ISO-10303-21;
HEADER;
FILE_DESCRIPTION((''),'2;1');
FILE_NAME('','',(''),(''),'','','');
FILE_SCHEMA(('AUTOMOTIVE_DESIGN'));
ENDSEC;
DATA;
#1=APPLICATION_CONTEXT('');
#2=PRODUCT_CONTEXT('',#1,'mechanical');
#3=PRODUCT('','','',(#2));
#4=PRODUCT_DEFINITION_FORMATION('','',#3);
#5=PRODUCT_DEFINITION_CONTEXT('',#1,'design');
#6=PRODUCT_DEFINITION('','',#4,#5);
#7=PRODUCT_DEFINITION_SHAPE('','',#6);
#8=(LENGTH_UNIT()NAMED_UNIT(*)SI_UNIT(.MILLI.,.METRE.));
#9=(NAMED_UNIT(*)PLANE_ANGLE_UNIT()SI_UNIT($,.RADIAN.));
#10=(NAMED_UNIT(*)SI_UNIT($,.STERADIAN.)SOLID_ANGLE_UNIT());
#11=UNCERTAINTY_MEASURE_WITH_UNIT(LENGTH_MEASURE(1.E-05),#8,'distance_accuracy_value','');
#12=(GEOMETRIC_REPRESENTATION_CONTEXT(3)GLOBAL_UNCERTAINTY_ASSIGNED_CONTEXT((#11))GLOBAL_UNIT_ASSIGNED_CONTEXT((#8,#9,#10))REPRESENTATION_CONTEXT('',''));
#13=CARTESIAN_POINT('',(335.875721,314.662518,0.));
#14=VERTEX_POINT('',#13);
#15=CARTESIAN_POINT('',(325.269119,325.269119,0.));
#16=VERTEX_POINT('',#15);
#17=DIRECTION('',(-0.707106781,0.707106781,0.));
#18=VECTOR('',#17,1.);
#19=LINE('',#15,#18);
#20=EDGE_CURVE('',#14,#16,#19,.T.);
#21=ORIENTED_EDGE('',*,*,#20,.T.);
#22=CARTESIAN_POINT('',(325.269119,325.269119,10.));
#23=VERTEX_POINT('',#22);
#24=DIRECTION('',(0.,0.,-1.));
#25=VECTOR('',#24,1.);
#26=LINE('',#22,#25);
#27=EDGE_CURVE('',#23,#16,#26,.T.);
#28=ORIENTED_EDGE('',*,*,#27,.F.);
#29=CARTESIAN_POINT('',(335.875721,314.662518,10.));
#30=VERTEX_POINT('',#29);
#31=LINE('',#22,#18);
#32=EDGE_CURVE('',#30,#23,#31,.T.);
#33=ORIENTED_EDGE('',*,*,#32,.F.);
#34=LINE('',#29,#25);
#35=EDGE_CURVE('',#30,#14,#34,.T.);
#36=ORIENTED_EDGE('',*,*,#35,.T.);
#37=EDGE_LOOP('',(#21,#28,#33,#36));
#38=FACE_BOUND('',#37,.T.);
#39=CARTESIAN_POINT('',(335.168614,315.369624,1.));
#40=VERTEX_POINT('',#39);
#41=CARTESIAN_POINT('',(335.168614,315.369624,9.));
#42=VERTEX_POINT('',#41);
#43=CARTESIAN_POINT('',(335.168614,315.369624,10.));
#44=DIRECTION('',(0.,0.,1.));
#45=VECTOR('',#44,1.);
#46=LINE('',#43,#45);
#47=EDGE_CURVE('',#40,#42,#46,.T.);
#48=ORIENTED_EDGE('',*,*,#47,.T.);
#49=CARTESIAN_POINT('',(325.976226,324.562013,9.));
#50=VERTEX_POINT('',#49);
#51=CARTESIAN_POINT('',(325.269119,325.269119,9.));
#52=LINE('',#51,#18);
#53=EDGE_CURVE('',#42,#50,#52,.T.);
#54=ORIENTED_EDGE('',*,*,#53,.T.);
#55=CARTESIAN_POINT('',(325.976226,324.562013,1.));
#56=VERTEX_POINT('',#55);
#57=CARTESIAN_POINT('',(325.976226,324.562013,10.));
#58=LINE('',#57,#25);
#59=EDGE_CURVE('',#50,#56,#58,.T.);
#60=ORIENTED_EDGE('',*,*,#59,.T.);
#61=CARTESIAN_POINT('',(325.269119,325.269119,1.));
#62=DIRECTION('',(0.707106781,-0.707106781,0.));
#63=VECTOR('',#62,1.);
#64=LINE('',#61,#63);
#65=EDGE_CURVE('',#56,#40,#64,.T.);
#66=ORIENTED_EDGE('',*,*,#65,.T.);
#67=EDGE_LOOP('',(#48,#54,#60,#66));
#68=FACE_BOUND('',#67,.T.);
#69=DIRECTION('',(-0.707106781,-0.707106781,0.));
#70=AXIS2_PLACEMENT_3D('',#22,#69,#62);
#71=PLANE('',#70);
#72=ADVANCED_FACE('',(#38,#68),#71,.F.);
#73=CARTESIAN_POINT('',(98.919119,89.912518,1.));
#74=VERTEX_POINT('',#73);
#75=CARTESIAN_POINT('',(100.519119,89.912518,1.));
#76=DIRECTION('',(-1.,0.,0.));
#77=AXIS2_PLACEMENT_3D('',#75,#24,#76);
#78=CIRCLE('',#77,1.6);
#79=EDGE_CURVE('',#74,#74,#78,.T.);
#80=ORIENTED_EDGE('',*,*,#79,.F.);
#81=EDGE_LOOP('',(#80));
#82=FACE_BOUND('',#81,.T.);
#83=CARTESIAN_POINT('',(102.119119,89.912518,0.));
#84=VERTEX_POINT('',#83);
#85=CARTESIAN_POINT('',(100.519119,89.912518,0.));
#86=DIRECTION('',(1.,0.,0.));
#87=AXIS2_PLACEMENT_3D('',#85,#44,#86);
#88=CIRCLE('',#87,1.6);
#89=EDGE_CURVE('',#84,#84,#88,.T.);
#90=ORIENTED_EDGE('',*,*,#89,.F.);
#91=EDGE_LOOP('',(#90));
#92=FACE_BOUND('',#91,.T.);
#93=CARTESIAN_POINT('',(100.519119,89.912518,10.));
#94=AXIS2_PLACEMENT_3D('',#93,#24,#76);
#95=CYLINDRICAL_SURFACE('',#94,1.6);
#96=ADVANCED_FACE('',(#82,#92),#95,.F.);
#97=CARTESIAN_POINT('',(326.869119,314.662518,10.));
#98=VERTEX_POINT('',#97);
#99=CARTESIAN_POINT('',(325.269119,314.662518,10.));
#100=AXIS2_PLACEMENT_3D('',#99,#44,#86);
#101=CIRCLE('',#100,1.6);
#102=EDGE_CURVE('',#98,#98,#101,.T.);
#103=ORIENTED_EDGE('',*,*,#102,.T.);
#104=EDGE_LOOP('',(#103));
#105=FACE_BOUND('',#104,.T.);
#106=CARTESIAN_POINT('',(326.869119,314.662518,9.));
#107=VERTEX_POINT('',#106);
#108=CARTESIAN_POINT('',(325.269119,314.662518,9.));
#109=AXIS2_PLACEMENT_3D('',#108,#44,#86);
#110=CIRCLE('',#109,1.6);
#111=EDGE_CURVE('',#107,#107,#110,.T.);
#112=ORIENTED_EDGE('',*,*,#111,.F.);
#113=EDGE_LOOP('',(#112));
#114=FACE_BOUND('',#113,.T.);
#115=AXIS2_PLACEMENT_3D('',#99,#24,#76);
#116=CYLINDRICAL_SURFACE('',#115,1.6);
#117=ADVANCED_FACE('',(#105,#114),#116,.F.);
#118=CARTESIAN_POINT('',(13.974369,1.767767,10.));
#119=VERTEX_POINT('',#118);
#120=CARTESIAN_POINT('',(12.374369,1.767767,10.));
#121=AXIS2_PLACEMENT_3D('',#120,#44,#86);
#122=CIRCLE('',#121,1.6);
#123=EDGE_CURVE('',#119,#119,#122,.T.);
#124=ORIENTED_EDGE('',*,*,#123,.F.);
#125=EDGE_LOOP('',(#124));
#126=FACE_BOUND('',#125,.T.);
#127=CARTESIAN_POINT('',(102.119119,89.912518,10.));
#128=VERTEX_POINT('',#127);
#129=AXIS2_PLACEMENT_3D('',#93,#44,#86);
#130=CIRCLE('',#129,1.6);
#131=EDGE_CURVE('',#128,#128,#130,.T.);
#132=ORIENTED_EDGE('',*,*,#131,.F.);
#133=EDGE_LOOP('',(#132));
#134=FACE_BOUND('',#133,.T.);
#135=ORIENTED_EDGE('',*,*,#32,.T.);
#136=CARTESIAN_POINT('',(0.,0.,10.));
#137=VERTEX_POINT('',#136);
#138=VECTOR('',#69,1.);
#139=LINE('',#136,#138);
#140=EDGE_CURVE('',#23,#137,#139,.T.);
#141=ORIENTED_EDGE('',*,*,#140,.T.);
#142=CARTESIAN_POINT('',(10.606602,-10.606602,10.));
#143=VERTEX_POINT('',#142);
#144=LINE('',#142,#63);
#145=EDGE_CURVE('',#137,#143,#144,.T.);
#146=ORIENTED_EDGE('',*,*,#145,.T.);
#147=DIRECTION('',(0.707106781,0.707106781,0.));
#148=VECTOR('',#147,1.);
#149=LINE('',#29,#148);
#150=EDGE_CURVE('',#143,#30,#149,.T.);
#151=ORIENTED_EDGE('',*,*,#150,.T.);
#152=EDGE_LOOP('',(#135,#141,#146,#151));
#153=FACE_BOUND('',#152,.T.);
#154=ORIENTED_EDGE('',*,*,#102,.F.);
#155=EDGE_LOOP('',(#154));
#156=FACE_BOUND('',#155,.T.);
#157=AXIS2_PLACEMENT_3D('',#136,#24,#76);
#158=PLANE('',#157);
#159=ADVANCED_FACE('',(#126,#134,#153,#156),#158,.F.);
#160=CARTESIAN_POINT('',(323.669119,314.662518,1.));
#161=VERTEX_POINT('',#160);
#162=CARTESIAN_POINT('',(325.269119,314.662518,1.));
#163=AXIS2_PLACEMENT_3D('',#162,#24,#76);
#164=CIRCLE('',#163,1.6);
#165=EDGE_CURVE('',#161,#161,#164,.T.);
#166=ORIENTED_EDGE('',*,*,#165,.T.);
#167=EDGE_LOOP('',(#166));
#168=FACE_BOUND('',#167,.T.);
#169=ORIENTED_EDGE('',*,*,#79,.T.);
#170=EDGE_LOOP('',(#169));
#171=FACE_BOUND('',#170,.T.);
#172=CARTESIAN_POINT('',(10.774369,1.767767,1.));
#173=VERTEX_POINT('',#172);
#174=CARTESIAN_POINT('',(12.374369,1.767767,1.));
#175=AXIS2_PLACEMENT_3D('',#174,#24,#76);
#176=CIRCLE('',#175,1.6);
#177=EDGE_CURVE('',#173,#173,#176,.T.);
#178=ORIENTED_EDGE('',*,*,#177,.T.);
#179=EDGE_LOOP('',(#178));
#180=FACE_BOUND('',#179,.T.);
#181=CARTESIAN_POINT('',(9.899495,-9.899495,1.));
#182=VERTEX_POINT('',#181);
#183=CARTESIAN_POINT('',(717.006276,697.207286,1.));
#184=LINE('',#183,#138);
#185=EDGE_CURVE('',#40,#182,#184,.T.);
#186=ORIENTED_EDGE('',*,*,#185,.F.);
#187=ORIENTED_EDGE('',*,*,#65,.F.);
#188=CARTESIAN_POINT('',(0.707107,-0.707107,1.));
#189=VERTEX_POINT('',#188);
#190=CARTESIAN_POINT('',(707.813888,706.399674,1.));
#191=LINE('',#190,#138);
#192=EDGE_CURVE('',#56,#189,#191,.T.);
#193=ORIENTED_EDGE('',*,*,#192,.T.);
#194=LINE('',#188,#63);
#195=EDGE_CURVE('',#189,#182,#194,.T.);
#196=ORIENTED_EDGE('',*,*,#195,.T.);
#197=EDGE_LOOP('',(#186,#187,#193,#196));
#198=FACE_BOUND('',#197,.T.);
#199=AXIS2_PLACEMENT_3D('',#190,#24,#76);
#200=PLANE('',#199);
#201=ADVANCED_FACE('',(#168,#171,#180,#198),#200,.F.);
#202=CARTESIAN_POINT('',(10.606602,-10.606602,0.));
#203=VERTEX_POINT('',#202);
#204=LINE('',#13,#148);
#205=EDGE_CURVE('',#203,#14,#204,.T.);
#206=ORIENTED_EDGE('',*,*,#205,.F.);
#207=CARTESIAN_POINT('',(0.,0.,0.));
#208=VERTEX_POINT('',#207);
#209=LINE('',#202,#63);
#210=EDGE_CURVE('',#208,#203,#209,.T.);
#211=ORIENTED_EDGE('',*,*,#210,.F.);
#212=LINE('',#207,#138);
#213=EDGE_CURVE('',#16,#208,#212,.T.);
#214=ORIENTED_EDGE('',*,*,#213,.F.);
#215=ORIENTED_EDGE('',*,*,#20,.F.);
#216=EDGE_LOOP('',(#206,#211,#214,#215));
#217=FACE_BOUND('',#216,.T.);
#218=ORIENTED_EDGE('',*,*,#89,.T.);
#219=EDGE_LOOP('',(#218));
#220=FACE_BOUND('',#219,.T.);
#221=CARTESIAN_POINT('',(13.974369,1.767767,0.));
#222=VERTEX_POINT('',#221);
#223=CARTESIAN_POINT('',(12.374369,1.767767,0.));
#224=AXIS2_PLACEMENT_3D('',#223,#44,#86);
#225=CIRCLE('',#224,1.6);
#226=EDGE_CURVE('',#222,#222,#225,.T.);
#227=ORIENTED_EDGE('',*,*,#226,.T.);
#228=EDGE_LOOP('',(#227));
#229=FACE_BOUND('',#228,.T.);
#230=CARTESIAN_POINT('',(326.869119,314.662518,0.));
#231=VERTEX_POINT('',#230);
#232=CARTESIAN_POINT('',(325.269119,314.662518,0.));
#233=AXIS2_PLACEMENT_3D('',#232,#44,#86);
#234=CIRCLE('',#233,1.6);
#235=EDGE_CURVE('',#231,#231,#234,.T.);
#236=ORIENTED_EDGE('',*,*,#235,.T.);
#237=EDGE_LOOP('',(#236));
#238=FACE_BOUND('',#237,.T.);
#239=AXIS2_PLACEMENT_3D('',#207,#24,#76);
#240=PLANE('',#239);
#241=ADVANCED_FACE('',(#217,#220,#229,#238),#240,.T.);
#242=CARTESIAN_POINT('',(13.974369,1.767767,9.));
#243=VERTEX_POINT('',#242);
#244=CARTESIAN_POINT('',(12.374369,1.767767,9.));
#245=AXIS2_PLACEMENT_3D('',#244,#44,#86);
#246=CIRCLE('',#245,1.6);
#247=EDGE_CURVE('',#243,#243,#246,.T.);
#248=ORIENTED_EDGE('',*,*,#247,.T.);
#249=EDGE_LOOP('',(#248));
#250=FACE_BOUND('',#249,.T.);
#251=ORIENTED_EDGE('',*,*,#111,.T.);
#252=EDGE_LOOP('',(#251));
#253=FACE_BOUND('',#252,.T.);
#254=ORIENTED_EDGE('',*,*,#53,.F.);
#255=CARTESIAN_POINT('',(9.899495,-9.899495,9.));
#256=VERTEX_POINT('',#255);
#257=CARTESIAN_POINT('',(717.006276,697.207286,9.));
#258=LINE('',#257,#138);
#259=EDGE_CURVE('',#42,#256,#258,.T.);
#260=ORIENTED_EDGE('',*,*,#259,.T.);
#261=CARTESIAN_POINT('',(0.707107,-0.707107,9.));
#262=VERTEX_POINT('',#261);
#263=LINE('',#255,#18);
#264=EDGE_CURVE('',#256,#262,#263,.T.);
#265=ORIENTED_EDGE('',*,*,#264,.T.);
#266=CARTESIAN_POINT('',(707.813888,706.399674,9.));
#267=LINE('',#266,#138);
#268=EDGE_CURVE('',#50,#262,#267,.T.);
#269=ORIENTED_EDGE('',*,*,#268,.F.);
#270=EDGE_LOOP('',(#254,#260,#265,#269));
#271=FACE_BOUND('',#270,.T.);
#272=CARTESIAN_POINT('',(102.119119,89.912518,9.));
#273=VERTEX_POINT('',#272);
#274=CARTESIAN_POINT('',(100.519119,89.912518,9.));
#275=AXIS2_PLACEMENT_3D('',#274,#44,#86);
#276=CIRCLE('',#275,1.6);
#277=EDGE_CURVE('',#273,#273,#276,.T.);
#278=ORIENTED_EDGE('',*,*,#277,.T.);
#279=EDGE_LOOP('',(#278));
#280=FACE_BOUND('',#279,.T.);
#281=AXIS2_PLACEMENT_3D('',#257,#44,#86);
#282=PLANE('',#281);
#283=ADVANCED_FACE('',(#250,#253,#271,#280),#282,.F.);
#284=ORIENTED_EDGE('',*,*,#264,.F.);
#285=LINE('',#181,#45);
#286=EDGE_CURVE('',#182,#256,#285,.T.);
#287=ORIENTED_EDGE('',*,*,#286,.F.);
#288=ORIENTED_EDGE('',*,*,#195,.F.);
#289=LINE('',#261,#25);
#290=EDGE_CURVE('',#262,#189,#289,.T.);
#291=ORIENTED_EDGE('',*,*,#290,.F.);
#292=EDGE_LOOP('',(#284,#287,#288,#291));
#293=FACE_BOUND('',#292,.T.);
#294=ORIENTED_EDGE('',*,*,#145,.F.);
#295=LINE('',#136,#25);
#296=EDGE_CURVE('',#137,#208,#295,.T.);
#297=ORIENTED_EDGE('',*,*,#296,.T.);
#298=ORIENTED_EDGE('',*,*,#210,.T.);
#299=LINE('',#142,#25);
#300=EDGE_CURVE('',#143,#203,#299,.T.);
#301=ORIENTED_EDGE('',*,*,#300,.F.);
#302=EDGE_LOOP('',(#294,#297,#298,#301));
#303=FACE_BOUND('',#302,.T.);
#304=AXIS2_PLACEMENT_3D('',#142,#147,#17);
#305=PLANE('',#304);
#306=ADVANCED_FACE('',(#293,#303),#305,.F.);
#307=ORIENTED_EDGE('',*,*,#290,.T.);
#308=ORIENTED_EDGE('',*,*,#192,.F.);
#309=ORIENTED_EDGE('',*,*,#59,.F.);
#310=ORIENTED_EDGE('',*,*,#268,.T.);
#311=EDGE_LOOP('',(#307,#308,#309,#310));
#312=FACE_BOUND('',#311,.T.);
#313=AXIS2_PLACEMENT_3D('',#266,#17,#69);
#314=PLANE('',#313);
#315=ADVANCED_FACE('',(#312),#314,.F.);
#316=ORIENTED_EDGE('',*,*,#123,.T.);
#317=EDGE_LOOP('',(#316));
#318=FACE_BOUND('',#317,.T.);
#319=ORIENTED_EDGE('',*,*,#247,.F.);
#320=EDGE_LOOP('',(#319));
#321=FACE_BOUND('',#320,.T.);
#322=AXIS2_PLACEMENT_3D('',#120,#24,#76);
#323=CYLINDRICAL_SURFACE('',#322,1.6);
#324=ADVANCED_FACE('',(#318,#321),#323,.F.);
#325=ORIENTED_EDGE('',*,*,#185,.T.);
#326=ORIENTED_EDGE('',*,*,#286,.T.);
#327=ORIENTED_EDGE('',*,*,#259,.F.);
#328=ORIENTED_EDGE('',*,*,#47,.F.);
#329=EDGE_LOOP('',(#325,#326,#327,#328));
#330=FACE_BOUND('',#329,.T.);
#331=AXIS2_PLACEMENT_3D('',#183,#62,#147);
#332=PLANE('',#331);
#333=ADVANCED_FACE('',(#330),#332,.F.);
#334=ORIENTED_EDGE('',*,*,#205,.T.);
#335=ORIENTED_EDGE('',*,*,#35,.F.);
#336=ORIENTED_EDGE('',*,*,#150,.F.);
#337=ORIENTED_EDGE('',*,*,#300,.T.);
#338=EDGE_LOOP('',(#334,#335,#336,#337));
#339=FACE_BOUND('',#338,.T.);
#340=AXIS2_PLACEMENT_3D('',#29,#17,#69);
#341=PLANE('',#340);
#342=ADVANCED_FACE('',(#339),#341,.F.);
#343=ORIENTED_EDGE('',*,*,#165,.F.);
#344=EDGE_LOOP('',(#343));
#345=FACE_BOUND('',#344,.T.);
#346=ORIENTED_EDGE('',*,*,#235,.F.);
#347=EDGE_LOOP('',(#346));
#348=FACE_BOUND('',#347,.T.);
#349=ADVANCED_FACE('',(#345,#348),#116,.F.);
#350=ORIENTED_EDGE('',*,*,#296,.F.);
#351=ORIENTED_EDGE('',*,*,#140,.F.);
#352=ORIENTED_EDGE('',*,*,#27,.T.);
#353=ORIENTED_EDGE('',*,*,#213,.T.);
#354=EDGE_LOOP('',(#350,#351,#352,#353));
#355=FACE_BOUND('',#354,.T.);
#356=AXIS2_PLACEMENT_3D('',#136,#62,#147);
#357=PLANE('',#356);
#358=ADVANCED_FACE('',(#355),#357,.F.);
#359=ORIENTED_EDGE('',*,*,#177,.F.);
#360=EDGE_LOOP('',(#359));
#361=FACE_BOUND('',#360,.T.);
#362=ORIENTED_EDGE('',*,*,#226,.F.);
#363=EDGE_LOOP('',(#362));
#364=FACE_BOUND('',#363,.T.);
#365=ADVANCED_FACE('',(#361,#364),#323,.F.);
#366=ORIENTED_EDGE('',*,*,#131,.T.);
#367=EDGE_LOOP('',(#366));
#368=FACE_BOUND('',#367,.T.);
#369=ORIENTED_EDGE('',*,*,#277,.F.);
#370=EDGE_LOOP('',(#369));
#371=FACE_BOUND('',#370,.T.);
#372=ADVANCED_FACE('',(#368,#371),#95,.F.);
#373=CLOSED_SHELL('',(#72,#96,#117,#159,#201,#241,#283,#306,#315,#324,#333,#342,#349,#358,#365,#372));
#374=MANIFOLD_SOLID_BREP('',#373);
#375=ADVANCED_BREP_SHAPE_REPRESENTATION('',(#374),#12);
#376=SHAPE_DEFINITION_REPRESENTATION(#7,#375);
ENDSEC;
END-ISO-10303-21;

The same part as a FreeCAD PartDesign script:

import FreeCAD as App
import Part
import Sketcher
Q = App.Units.Quantity

doc = App.newDocument("Part")
body = doc.addObject("PartDesign::Body", "Body")

sketch1 = doc.addObject("Sketcher::SketchObject", "Sketch")
body.addObject(sketch1)
sketch1.AttachmentSupport = (doc.XY_Plane, [""])
sketch1.MapMode = "FlatFace"
sketch1.addGeometry([
    Part.LineSegment(App.Vector(335.9, 314.7, 0), App.Vector(325.3, 325.3, 0)),
    Part.LineSegment(App.Vector(325.3, 325.3, 0), App.Vector(0, 0, 0)),
    Part.LineSegment(App.Vector(0, 0, 0), App.Vector(10.6, -10.6, 0)),
    Part.LineSegment(App.Vector(10.6, -10.6, 0), App.Vector(335.9, 314.7, 0)),
    Part.Circle(App.Vector(12.4, 1.8, 0), App.Vector(0, 0, 1), 1.6),
    Part.Circle(App.Vector(100.5, 89.9, 0), App.Vector(0, 0, 1), 1.6),
    Part.Circle(App.Vector(325.3, 314.7, 0), App.Vector(0, 0, 1), 1.6),
], False)
sketch1.addConstraint([
    Sketcher.Constraint("Coincident", 0, 2, 1, 1),
    Sketcher.Constraint("Coincident", 1, 2, 2, 1),
    Sketcher.Constraint("Coincident", 2, 2, 3, 1),
    Sketcher.Constraint("Coincident", 3, 2, 0, 1),
    Sketcher.Constraint("Coincident", 1, 2, -1, 1),
    Sketcher.Constraint("Equal", 4, 5),
    Sketcher.Constraint("Equal", 5, 6),
    Sketcher.Constraint("Perpendicular", 0, 1),
    Sketcher.Constraint("Perpendicular", 1, 2),
    Sketcher.Constraint("Perpendicular", 2, 3),
    Sketcher.Constraint("Horizontal", 6, 3, 3, 2),
    Sketcher.Constraint("Vertical", 6, 3, 0, 2),
    Sketcher.Constraint("Diameter", 4, Q("3.2 mm")),
    Sketcher.Constraint("Angle", 0, Q("135 deg")),
    Sketcher.Constraint("Distance", 0, Q("15 mm")),
    Sketcher.Constraint("Distance", 1, Q("460 mm")),
    Sketcher.Constraint("DistanceX", 5, 3, 6, 3, Q("224.75 mm")),
    Sketcher.Constraint("DistanceY", 5, 3, 6, 3, Q("224.75 mm")),
    Sketcher.Constraint("DistanceX", -1, 1, 4, 3, Q("12.374369 mm")),
    Sketcher.Constraint("DistanceY", 4, 3, 5, 3, Q("88.144751 mm")),
])
pad1 = doc.addObject("PartDesign::Pad", "Pad")
body.addObject(pad1)
pad1.Profile = sketch1
pad1.Length = 10

sketch2 = doc.addObject("Sketcher::SketchObject", "Sketch001")
body.addObject(sketch2)
sketch2.Placement = App.Placement(App.Vector(0, 0, 0), App.Rotation(App.Vector(0, 0, 1), App.Vector(-0.707106781, 0.707106781, 0), App.Vector(-0.707106781, -0.707106781, 0), "ZXY"))
sketch2.addGeometry([
    Part.LineSegment(App.Vector(1, -1, 0), App.Vector(1, -14, 0)),
    Part.LineSegment(App.Vector(1, -14, 0), App.Vector(9, -14, 0)),
    Part.LineSegment(App.Vector(9, -14, 0), App.Vector(9, -1, 0)),
    Part.LineSegment(App.Vector(9, -1, 0), App.Vector(1, -1, 0)),
], False)
sketch2.addConstraint([
    Sketcher.Constraint("Coincident", 0, 2, 1, 1),
    Sketcher.Constraint("Coincident", 1, 2, 2, 1),
    Sketcher.Constraint("Coincident", 2, 2, 3, 1),
    Sketcher.Constraint("Coincident", 3, 2, 0, 1),
    Sketcher.Constraint("Vertical", 0),
    Sketcher.Constraint("Horizontal", 1),
    Sketcher.Constraint("Vertical", 2),
    Sketcher.Constraint("Horizontal", 3),
    Sketcher.Constraint("DistanceX", 1, 1, 1, 2, Q("8 mm")),
    Sketcher.Constraint("DistanceY", 0, 2, 0, 1, Q("13 mm")),
    Sketcher.Constraint("DistanceX", -1, 1, 0, 2, Q("1 mm")),
    Sketcher.Constraint("DistanceY", 0, 2, -1, 1, Q("14 mm")),
])
pocket1 = doc.addObject("PartDesign::Pocket", "Pocket")
body.addObject(pocket1)
pocket1.Profile = sketch2
pocket1.Length = 1000

doc.recompute()
